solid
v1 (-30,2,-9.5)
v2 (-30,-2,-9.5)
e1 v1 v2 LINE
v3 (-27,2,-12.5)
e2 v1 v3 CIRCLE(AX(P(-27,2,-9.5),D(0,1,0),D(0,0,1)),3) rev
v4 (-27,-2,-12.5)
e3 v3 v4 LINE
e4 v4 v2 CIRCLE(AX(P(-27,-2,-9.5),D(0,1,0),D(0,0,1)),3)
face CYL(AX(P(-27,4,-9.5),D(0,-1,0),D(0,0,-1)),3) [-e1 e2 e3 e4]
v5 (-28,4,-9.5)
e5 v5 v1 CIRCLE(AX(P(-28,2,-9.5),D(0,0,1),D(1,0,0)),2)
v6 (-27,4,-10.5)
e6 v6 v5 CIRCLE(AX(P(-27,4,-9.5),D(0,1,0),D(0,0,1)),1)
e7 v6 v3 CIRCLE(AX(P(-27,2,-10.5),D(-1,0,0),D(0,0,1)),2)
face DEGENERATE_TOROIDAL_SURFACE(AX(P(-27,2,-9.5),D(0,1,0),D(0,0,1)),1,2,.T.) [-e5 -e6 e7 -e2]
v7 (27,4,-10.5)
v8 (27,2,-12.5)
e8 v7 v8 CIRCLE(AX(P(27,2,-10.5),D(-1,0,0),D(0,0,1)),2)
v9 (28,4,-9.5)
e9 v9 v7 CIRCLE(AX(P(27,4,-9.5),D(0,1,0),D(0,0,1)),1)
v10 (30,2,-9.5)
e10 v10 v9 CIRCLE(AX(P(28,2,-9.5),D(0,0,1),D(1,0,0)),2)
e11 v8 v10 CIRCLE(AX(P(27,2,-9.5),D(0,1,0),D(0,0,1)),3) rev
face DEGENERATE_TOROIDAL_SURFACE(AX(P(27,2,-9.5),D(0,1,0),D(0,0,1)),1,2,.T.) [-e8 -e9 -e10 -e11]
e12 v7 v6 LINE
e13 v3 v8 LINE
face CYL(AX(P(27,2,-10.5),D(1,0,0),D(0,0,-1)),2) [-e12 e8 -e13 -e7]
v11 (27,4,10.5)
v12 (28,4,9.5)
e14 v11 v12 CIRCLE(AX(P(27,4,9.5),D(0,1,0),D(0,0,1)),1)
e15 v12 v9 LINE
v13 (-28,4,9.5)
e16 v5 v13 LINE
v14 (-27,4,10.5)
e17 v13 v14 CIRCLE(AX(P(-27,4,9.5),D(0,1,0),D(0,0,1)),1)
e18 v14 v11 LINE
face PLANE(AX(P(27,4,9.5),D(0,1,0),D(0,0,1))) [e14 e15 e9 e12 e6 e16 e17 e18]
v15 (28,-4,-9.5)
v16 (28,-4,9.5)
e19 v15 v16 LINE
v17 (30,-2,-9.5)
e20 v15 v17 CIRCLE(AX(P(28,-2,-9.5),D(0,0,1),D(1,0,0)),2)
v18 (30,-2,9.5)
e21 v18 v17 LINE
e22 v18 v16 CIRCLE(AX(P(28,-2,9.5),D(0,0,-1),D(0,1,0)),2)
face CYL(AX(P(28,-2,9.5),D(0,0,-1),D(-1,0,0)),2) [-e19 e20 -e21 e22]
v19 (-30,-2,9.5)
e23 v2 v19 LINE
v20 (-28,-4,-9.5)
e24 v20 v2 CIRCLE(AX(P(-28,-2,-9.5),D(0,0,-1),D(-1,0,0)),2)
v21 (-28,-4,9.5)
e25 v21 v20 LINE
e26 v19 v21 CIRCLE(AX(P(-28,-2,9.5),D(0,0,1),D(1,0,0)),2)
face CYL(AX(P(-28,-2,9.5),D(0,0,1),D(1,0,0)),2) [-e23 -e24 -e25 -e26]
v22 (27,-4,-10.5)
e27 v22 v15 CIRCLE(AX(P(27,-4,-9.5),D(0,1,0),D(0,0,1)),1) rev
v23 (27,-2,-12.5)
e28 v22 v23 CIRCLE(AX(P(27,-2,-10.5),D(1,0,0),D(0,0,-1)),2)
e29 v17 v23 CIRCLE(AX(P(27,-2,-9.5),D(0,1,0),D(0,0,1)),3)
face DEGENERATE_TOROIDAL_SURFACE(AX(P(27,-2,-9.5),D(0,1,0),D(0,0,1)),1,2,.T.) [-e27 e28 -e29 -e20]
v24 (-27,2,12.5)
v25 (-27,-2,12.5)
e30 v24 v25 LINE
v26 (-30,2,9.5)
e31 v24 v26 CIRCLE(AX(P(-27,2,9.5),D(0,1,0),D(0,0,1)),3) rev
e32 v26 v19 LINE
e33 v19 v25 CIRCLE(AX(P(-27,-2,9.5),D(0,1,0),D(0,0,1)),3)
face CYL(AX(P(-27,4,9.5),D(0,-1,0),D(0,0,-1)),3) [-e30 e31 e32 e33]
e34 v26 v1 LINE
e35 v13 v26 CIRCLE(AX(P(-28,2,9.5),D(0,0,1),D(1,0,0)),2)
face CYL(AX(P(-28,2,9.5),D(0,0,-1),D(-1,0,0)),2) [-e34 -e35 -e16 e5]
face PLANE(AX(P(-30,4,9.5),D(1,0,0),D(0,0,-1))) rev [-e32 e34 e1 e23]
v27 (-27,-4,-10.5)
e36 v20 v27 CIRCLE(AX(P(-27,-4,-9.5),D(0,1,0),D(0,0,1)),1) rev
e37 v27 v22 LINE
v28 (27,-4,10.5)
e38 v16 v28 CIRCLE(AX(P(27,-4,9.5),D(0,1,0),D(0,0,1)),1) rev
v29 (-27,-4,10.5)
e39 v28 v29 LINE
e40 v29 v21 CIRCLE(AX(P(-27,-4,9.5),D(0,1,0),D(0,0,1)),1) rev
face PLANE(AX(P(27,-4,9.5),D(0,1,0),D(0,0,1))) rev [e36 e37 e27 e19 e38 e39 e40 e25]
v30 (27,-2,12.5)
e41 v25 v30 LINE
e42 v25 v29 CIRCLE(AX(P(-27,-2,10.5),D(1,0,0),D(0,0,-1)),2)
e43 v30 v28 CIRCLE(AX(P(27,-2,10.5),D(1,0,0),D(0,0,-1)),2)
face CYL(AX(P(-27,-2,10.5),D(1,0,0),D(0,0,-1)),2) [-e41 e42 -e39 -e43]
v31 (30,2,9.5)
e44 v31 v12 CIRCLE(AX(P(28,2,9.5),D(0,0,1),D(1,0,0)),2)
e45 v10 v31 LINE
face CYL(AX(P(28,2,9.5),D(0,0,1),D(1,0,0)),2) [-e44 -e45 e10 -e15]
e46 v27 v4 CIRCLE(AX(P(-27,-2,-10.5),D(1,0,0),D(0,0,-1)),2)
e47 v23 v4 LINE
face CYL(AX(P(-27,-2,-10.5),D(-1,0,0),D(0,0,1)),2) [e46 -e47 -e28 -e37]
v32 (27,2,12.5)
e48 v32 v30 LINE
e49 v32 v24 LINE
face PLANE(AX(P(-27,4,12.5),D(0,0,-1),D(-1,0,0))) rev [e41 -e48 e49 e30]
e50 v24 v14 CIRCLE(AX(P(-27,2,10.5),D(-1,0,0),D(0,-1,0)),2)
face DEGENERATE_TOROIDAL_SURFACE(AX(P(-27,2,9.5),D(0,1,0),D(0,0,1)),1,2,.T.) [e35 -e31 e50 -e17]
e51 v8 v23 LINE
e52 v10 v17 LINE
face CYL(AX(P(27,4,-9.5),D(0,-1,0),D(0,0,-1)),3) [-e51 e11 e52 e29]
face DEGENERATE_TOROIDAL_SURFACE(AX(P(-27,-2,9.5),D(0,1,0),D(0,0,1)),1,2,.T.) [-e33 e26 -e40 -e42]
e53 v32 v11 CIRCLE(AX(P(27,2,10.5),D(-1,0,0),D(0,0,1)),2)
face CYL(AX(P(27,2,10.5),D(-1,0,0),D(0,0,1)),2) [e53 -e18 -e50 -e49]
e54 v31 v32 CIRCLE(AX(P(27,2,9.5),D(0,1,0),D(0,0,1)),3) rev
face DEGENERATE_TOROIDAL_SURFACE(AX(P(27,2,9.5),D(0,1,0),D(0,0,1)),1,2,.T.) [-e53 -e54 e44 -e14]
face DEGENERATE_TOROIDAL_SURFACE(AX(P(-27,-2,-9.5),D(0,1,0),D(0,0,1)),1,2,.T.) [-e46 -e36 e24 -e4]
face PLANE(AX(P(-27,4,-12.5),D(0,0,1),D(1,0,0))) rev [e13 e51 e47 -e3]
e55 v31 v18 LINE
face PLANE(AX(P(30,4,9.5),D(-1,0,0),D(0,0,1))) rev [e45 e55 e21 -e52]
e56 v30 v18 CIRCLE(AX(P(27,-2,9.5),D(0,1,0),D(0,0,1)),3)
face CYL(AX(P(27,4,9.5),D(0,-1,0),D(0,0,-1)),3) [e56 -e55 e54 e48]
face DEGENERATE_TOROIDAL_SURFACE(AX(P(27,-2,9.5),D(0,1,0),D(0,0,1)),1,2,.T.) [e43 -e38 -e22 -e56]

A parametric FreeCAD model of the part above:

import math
import FreeCAD as App
import Part
import Sketcher
from FreeCAD import Vector


def edges_at(feature, points):
    """Names of the edges that pass closest to the given points."""
    edges = feature.Shape.Edges
    near = lambda p: min(range(len(edges)), key=lambda i: edges[i].distToShape(Part.Vertex(*p))[0])
    return sorted({f"Edge{near(p) + 1}" for p in points})

doc = App.newDocument("Part")
body = doc.addObject("PartDesign::Body", "Body")

sketch1 = body.newObject("Sketcher::SketchObject", "Sketch")
sketch1.AttachmentSupport = (doc.getObject("XZ_Plane"), [""])
sketch1.MapMode = "FlatFace"
sketch1.addGeometry(Part.LineSegment(Vector(-27, 12.5, 0), Vector(27, 12.5, 0)), False)
sketch1.addGeometry(Part.ArcOfCircle(Part.Circle(Vector(27, 9.5, 0), Vector(0, 0, 1), 3), math.radians(0), math.radians(90)), False)
sketch1.addGeometry(Part.LineSegment(Vector(30, 9.5, 0), Vector(30, -9.5, 0)), False)
sketch1.addGeometry(Part.ArcOfCircle(Part.Circle(Vector(27, -9.5, 0), Vector(0, 0, 1), 3), math.radians(-90), math.radians(0)), False)
sketch1.addGeometry(Part.LineSegment(Vector(27, -12.5, 0), Vector(-27, -12.5, 0)), False)
sketch1.addGeometry(Part.ArcOfCircle(Part.Circle(Vector(-27, -9.5, 0), Vector(0, 0, 1), 3), math.radians(180), math.radians(270)), False)
sketch1.addGeometry(Part.LineSegment(Vector(-30, -9.5, 0), Vector(-30, 9.5, 0)), False)
sketch1.addGeometry(Part.ArcOfCircle(Part.Circle(Vector(-27, 9.5, 0), Vector(0, 0, 1), 3), math.radians(90), math.radians(180)), False)
sketch1.addConstraint(Sketcher.Constraint("Tangent", 0, 2, 1, 2))
sketch1.addConstraint(Sketcher.Constraint("Tangent", 1, 1, 2, 1))
sketch1.addConstraint(Sketcher.Constraint("Tangent", 2, 2, 3, 2))
sketch1.addConstraint(Sketcher.Constraint("Tangent", 3, 1, 4, 1))
sketch1.addConstraint(Sketcher.Constraint("Tangent", 4, 2, 5, 2))
sketch1.addConstraint(Sketcher.Constraint("Tangent", 5, 1, 6, 1))
sketch1.addConstraint(Sketcher.Constraint("Tangent", 6, 2, 7, 2))
sketch1.addConstraint(Sketcher.Constraint("Tangent", 7, 1, 0, 1))
sketch1.addConstraint(Sketcher.Constraint("Horizontal", 0))
sketch1.addConstraint(Sketcher.Constraint("Vertical", 2))
sketch1.addConstraint(Sketcher.Constraint("Horizontal", 4))
sketch1.addConstraint(Sketcher.Constraint("Vertical", 6))
sketch1.addConstraint(Sketcher.Constraint("Equal", 1, 3))
sketch1.addConstraint(Sketcher.Constraint("Equal", 3, 5))
sketch1.addConstraint(Sketcher.Constraint("Equal", 5, 7))
sketch1.addConstraint(Sketcher.Constraint("Symmetric", 1, 3, 5, 3, -1, 1))
sketch1.addConstraint(Sketcher.Constraint("Radius", 1, 3.0))
sketch1.addConstraint(Sketcher.Constraint("DistanceX", 0, 1, 0, 2, 54.0))
sketch1.addConstraint(Sketcher.Constraint("DistanceY", 2, 2, 2, 1, 19.0))
pad1 = body.newObject("PartDesign::Pad", "Pad")
pad1.Profile = sketch1
pad1.Length = 8
pad1.Midplane = True
doc.recompute()

fillet = body.newObject("PartDesign::Fillet", "Fillet")
fillet.Base = (pad1, edges_at(pad1, [
    (0, -4, -12.5),
    (29.121, -4, -11.621),
    (30, -4, 0),
    (29.121, -4, 11.621),
    (29.121, 4, -11.621),
    (0, 4, -12.5),
    (-29.121, 4, -11.621),
    (-30, 4, 0),
    (-29.121, 4, 11.621),
    (0, 4, 12.5),
    (29.121, 4, 11.621),
    (0, -4, 12.5),
    (30, 4, 0),
    (-29.121, -4, 11.621),
    (-30, -4, 0),
    (-29.121, -4, -11.621),
]))
fillet.Radius = 2

doc.recompute()
